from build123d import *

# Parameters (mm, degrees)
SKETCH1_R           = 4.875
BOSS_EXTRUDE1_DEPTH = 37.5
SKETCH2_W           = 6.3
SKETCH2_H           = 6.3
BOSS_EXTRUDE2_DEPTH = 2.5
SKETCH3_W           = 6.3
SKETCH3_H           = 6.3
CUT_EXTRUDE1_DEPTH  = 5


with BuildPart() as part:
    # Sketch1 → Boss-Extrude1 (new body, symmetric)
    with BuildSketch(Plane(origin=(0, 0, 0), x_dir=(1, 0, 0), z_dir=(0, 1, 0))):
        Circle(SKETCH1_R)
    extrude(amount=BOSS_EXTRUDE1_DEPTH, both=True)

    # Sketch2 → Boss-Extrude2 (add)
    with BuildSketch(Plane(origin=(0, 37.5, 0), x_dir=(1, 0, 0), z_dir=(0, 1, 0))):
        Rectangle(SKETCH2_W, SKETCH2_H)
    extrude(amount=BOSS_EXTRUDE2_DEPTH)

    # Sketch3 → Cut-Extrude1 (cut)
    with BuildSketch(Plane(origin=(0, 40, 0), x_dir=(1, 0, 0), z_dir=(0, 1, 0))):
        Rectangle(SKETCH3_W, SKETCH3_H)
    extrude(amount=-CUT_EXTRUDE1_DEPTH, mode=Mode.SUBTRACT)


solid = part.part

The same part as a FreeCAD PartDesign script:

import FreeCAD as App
import Part
import Sketcher
from FreeCAD import Vector


def add_polygon(sketch, points):
    """Adds a closed chain of lines whose ends are joined by coincident constraints."""
    first, n = sketch.GeometryCount, len(points)
    for a, b in zip(points, points[1:] + points[:1]):
        sketch.addGeometry(Part.LineSegment(App.Vector(*a, 0), App.Vector(*b, 0)), False)
    for i in range(n):
        sketch.addConstraint(Sketcher.Constraint("Coincident", first + i, 2, first + (i + 1) % n, 1))

doc = App.newDocument("Part")
body = doc.addObject("PartDesign::Body", "Body")

sketch1 = body.newObject("Sketcher::SketchObject", "Sketch")
sketch1.AttachmentSupport = (doc.getObject("XZ_Plane"), [""])
sketch1.MapMode = "FlatFace"
sketch1.addGeometry(Part.Circle(Vector(0, 0, 0), Vector(0, 0, 1), 4.875), False)
sketch1.addConstraint(Sketcher.Constraint("Coincident", 0, 3, -1, 1))
sketch1.addConstraint(Sketcher.Constraint("Diameter", 0, 9.75))
pad1 = body.newObject("PartDesign::Pad", "Pad")
pad1.Profile = sketch1
pad1.Length = 75
pad1.Midplane = True

sketch2 = body.newObject("Sketcher::SketchObject", "Sketch001")
sketch2.AttachmentSupport = (doc.getObject("XZ_Plane"), [""])
sketch2.MapMode = "FlatFace"
sketch2.AttachmentOffset = App.Placement(Vector(0, 0, -37.5), App.Rotation())
add_polygon(sketch2, [(-3.15, -3.15), (-3.15, 3.15), (3.15, 3.15), (3.15, -3.15)])
sketch2.addConstraint(Sketcher.Constraint("Vertical", 0))
sketch2.addConstraint(Sketcher.Constraint("Horizontal", 1))
sketch2.addConstraint(Sketcher.Constraint("Vertical", 2))
sketch2.addConstraint(Sketcher.Constraint("Horizontal", 3))
sketch2.addConstraint(Sketcher.Constraint("Symmetric", 0, 2, 2, 2, -1, 1))
sketch2.addConstraint(Sketcher.Constraint("Equal", 3, 0))
sketch2.addConstraint(Sketcher.Constraint("DistanceX", 1, 1, 1, 2, 6.3))
pad2 = body.newObject("PartDesign::Pad", "Pad001")
pad2.Profile = sketch2
pad2.Length = 2.5
pad2.Reversed = True

sketch3 = body.newObject("Sketcher::SketchObject", "Sketch002")
sketch3.AttachmentSupport = (doc.getObject("XZ_Plane"), [""])
sketch3.MapMode = "FlatFace"
sketch3.AttachmentOffset = App.Placement(Vector(0, 0, -40), App.Rotation())
add_polygon(sketch3, [(-3.15, -3.15), (-3.15, 3.15), (3.15, 3.15), (3.15, -3.15)])
sketch3.addConstraint(Sketcher.Constraint("Vertical", 0))
sketch3.addConstraint(Sketcher.Constraint("Horizontal", 1))
sketch3.addConstraint(Sketcher.Constraint("Vertical", 2))
sketch3.addConstraint(Sketcher.Constraint("Horizontal", 3))
sketch3.addConstraint(Sketcher.Constraint("Symmetric", 0, 2, 2, 2, -1, 1))
sketch3.addConstraint(Sketcher.Constraint("Equal", 3, 0))
sketch3.addConstraint(Sketcher.Constraint("DistanceX", 1, 1, 1, 2, 6.3))
pocket1 = body.newObject("PartDesign::Pocket", "Pocket")
pocket1.Profile = sketch3
pocket1.Length = 5
pocket1.Reversed = True

doc.recompute()
